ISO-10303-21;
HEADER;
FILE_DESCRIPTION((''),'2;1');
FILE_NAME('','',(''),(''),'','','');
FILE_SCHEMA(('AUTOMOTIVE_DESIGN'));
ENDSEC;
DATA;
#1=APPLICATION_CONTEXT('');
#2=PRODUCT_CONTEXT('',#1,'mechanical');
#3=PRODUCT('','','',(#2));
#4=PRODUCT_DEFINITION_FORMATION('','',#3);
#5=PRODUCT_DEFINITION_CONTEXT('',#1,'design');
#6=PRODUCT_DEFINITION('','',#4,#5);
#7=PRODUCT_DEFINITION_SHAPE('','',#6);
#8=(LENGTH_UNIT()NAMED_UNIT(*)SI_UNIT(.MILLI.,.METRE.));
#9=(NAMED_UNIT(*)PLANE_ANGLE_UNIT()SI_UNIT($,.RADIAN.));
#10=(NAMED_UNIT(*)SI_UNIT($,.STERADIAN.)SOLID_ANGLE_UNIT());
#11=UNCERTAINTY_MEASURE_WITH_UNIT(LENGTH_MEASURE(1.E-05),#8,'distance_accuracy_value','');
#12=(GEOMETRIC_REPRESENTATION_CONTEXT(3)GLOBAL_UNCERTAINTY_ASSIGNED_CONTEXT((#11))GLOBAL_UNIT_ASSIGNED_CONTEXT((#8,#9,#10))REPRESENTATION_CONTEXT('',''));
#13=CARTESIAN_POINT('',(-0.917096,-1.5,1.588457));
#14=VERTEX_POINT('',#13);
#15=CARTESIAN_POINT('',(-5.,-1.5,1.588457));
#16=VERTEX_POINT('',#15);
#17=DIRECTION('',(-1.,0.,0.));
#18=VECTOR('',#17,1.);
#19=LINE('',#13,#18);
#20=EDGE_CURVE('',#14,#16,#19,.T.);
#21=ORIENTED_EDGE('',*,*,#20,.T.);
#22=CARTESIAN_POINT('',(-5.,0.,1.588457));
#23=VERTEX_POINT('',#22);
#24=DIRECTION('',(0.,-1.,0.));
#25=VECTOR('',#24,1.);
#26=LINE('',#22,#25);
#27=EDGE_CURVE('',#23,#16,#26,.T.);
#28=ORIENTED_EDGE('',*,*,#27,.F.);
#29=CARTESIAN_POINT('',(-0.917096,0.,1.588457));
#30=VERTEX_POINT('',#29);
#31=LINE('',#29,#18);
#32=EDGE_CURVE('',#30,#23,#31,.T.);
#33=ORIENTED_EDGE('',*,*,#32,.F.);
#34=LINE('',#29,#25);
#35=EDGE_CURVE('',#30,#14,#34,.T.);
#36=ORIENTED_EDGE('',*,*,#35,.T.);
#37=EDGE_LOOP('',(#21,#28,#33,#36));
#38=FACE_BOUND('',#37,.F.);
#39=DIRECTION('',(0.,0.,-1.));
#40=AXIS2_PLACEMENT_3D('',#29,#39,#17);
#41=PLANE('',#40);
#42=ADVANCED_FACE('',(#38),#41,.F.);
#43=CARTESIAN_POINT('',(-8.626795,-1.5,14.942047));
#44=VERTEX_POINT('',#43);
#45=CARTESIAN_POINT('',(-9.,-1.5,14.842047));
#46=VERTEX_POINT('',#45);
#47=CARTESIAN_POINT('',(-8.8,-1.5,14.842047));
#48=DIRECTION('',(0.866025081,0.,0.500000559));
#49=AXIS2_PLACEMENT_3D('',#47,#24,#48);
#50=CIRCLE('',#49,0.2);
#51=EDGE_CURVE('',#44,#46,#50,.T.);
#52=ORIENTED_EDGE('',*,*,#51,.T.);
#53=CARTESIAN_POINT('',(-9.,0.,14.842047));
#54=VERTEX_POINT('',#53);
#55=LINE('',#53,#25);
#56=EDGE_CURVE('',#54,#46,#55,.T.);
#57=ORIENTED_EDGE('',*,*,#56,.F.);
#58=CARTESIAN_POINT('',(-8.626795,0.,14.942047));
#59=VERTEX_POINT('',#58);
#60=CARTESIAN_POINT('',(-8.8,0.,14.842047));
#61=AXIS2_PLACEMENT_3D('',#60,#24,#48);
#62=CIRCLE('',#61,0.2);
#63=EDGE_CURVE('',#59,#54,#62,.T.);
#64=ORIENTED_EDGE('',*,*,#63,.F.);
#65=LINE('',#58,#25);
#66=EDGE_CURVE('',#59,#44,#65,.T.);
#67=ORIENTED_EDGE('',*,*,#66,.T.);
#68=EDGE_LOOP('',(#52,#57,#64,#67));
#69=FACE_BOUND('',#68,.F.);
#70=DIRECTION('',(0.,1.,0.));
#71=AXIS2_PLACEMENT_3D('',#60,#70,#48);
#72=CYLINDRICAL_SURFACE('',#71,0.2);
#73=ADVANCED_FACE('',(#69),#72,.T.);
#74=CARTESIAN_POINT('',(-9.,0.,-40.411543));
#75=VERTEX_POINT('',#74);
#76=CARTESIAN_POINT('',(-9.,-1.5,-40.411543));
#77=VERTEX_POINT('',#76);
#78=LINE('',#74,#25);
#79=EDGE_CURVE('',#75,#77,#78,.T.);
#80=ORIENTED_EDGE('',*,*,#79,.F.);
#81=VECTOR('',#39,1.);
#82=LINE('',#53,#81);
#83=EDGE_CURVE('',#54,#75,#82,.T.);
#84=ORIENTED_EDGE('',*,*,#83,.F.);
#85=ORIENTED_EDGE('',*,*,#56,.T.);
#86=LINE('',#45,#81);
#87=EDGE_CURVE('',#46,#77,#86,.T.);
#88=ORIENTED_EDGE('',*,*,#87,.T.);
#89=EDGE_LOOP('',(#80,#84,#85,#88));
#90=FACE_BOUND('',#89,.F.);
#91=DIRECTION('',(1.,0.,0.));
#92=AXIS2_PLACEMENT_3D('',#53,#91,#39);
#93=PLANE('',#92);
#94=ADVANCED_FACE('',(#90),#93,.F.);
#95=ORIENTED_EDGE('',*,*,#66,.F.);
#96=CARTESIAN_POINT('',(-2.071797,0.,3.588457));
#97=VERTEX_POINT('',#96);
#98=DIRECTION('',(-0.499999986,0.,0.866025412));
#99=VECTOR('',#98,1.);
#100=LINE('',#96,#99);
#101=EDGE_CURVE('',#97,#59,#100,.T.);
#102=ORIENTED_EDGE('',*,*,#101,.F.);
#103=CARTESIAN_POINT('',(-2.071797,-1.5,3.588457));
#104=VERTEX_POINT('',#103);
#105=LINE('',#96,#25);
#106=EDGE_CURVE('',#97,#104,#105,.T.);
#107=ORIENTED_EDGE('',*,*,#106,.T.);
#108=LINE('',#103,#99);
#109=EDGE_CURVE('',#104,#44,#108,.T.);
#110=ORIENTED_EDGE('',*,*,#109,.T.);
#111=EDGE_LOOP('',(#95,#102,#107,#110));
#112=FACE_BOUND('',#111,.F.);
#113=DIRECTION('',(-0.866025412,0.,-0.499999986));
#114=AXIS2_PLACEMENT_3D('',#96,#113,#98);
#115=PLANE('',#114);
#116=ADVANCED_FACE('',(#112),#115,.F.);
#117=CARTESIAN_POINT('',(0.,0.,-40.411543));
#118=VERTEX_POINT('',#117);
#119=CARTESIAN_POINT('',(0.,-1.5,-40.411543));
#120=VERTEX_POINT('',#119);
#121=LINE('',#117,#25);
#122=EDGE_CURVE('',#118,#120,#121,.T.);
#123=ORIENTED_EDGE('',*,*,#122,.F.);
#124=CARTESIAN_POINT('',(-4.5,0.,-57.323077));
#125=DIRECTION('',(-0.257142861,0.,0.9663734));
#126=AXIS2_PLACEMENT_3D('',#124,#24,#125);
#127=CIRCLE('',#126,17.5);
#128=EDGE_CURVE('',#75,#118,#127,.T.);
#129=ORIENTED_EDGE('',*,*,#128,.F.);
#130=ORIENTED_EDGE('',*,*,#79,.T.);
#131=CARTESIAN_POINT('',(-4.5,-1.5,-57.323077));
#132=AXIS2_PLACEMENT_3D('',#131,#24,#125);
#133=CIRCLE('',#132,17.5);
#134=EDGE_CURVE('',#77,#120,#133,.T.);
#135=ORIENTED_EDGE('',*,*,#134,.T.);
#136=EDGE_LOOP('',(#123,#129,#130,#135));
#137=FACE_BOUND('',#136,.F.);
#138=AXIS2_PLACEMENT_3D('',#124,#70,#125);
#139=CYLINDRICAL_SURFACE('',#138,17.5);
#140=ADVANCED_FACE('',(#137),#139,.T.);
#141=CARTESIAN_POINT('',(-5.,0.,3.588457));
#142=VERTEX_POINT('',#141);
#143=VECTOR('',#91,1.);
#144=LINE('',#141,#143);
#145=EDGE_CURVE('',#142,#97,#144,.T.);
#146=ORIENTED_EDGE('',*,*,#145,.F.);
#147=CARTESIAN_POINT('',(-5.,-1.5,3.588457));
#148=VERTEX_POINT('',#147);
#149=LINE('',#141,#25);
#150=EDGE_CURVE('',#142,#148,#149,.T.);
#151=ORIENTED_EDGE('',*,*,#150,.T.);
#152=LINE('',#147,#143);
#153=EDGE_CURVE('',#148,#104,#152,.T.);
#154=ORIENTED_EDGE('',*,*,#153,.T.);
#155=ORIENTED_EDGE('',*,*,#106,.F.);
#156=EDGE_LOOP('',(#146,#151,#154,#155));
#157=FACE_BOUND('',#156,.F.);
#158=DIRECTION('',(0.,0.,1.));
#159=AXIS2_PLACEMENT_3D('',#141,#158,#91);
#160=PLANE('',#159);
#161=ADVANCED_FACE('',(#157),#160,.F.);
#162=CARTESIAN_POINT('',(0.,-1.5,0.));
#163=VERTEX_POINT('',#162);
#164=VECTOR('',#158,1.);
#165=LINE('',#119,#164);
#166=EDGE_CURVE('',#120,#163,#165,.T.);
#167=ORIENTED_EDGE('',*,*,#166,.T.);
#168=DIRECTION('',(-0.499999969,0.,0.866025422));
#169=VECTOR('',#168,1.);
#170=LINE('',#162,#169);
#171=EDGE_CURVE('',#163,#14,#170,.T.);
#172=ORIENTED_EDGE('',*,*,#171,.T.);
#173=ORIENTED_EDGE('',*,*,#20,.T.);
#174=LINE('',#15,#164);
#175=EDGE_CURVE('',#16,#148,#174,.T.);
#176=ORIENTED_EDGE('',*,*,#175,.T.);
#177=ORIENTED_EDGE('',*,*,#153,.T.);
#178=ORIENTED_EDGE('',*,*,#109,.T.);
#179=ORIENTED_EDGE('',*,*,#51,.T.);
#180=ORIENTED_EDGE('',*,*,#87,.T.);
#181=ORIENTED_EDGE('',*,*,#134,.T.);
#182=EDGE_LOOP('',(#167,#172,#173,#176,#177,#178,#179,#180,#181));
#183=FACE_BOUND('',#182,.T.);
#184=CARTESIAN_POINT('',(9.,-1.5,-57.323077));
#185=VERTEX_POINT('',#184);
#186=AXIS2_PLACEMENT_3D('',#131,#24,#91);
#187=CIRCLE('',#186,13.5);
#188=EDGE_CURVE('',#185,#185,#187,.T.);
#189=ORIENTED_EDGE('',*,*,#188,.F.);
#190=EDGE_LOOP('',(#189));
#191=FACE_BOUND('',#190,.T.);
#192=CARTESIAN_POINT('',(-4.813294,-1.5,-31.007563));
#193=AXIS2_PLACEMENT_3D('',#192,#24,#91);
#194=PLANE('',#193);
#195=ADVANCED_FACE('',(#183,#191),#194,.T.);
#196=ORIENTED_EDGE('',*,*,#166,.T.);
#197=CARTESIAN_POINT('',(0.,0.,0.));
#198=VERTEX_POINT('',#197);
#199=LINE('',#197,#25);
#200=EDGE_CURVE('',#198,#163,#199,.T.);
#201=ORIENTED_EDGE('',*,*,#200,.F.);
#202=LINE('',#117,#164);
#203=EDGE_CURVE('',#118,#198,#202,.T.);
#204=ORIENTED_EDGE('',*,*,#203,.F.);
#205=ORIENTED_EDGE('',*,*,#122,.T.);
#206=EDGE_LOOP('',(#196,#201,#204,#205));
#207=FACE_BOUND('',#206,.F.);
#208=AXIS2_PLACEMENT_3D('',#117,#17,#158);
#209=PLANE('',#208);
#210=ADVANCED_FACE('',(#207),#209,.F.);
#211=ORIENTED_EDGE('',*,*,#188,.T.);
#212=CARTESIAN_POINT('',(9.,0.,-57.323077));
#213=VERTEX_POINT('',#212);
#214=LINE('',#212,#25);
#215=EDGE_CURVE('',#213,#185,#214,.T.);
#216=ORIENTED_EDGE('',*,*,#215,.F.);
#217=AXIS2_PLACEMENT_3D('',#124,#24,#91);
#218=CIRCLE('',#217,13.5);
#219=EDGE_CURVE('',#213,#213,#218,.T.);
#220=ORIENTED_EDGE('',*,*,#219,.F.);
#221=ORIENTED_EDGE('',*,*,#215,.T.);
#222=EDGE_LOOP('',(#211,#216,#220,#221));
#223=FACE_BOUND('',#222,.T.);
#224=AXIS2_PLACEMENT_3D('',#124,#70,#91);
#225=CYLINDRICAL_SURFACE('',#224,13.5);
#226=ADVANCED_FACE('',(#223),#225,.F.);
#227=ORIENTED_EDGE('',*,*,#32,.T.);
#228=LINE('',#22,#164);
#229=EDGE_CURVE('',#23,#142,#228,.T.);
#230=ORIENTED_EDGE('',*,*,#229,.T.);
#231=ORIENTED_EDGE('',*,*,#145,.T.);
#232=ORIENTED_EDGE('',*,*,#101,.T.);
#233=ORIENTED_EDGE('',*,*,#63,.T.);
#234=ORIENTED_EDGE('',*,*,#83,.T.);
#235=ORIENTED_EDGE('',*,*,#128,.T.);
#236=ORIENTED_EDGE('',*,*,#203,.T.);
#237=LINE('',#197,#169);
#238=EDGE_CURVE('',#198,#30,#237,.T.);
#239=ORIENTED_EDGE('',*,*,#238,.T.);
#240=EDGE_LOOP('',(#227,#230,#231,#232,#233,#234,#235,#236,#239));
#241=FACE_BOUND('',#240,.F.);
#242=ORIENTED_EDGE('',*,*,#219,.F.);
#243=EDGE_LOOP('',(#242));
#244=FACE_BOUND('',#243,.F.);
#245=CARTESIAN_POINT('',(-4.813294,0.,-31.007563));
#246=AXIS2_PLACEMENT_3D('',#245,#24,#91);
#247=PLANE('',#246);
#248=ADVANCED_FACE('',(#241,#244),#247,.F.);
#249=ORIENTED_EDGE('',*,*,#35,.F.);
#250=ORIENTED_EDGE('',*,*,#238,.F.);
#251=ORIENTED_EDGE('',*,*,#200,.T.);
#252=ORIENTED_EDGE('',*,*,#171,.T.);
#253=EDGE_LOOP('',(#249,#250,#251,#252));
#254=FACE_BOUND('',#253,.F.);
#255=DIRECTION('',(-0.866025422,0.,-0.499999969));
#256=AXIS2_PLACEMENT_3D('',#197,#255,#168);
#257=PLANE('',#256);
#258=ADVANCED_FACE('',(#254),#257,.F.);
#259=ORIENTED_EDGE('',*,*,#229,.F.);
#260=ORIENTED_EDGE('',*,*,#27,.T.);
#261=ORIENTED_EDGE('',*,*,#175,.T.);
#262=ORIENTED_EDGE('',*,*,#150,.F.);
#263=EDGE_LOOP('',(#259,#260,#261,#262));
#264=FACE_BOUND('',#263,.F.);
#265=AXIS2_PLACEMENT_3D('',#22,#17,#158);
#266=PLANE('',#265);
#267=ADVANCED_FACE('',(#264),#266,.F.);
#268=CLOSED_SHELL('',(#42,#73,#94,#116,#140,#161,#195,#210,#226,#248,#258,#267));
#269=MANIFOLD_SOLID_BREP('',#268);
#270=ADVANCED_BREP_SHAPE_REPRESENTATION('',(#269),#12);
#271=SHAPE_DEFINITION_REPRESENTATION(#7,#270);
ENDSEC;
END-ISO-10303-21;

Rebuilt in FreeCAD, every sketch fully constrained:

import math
import FreeCAD as App
import Part
import Sketcher
Q = App.Units.Quantity

doc = App.newDocument("Part")
body = doc.addObject("PartDesign::Body", "Body")

# Sketch on XZ plane
sketch1 = body.newObject("Sketcher::SketchObject", "Sketch")
sketch1.AttachmentSupport = (doc.getObject("XZ_Plane"), [""])
sketch1.MapMode = "FlatFace"
sketch1.addGeometry([
    Part.LineSegment(App.Vector(-2.07, 3.59, 0), App.Vector(-8.63, 14.94, 0)),  # 0
    Part.ArcOfCircle(Part.Circle(App.Vector(-8.8, 14.84, 0), App.Vector(0, 0, 1), 0.2), math.radians(30), math.radians(180)),  # 1
    Part.LineSegment(App.Vector(-9, 14.84, 0), App.Vector(-9, -40.41, 0)),  # 2
    Part.ArcOfCircle(Part.Circle(App.Vector(-4.5, -57.32, 0), App.Vector(0, 0, 1), 17.5), math.radians(105), math.radians(435)),  # 3
    Part.LineSegment(App.Vector(0, -40.41, 0), App.Vector(0, 0, 0)),  # 4
    Part.LineSegment(App.Vector(0, 0, 0), App.Vector(-0.92, 1.59, 0)),  # 5
    Part.LineSegment(App.Vector(-0.92, 1.59, 0), App.Vector(-5, 1.59, 0)),  # 6
    Part.LineSegment(App.Vector(-5, 1.59, 0), App.Vector(-5, 3.59, 0)),  # 7
    Part.LineSegment(App.Vector(-5, 3.59, 0), App.Vector(-2.07, 3.59, 0)),  # 8
    Part.Circle(App.Vector(-4.5, -57.32, 0), App.Vector(0, 0, 1), 13.5),  # 9
], False)
sketch1.addConstraint([
    Sketcher.Constraint("Tangent", 0, 2, 1, 1),
    Sketcher.Constraint("Tangent", 1, 2, 2, 1),
    Sketcher.Constraint("Coincident", 2, 2, 3, 1),
    Sketcher.Constraint("Coincident", 3, 2, 4, 1),
    Sketcher.Constraint("Coincident", 4, 2, 5, 1),
    Sketcher.Constraint("Coincident", 5, 2, 6, 1),
    Sketcher.Constraint("Coincident", 6, 2, 7, 1),
    Sketcher.Constraint("Coincident", 7, 2, 8, 1),
    Sketcher.Constraint("Coincident", 8, 2, 0, 1),
    Sketcher.Constraint("Vertical", 2),
    Sketcher.Constraint("Vertical", 4),
    Sketcher.Constraint("Horizontal", 6),
    Sketcher.Constraint("Vertical", 7),
    Sketcher.Constraint("Horizontal", 8),
    Sketcher.Constraint("Coincident", 4, 2, -1, 1),
    Sketcher.Constraint("Coincident", 9, 3, 3, 3),
    Sketcher.Constraint("Parallel", 0, 5),
    Sketcher.Constraint("Horizontal", 2, 2, 3, 2),
    Sketcher.Constraint("Diameter", 9, Q("27 mm")),
    Sketcher.Constraint("Radius", 1, Q("0.2 mm")),
    Sketcher.Constraint("Radius", 3, Q("17.5 mm")),
    Sketcher.Constraint("DistanceY", 7, 1, 7, 2, Q("2 mm")),
    Sketcher.Constraint("Angle", 0, Q("119.999999 deg")),
    Sketcher.Constraint("DistanceX", 1, 2, -1, 1, Q("9 mm")),
    Sketcher.Constraint("DistanceX", 6, 2, -1, 1, Q("5 mm")),
    Sketcher.Constraint("DistanceY", 3, 2, 5, 2, Q("42 mm")),
    Sketcher.Constraint("DistanceY", 2, 2, 2, 1, Q("55.25359 mm")),
    Sketcher.Constraint("DistanceX", 0, 2, 5, 2, Q("7.709699 mm")),
])
pad1 = body.newObject("PartDesign::Pad", "Pad")
pad1.Profile = sketch1
pad1.Length = 1.5

doc.recompute()
